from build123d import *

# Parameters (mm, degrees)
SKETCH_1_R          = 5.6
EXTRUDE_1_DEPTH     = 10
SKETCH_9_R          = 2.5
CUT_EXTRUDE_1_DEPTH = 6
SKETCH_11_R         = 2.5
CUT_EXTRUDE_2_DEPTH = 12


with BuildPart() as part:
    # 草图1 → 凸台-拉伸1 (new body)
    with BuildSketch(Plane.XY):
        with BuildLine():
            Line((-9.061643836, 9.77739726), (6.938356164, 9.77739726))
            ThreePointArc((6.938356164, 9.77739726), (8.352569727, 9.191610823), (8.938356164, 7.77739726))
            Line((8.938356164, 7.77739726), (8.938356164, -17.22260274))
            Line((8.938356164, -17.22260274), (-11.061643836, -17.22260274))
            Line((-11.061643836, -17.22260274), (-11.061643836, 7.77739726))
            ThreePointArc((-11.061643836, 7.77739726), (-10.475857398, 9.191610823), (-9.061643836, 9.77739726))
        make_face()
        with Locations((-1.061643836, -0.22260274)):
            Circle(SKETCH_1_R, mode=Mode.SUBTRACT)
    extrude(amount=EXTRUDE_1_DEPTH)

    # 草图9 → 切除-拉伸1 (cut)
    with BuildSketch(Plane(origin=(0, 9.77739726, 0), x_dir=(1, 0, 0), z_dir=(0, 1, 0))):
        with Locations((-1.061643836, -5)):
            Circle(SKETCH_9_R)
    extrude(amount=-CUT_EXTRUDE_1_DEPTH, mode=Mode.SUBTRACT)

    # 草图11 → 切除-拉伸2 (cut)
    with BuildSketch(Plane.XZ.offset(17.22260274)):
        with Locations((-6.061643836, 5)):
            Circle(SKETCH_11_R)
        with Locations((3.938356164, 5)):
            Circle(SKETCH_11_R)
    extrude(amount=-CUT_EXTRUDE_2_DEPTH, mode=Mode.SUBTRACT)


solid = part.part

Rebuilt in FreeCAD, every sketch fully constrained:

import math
import FreeCAD as App
import Part
import Sketcher

V = App.Vector
Q = App.Units.Quantity

doc = App.newDocument("Part")
body = doc.addObject("PartDesign::Body", "Body")

# Sketch on XY plane
sketch1 = doc.addObject("Sketcher::SketchObject", "Sketch")
body.addObject(sketch1)
sketch1.AttachmentSupport = (doc.XY_Plane, [""])
sketch1.MapMode = "FlatFace"
sketch1.addGeometry([
    Part.LineSegment(V(6.9, 9.8, 0), V(-9.1, 9.8, 0)),  # 0
    Part.ArcOfCircle(Part.Circle(V(-9.1, 7.8, 0), V(0, 0, 1), 2), math.radians(90), math.radians(180)),  # 1
    Part.LineSegment(V(-11.1, 7.8, 0), V(-11.1, -17.2, 0)),  # 2
    Part.LineSegment(V(-11.1, -17.2, 0), V(8.9, -17.2, 0)),  # 3
    Part.LineSegment(V(8.9, -17.2, 0), V(8.9, 7.8, 0)),  # 4
    Part.ArcOfCircle(Part.Circle(V(6.9, 7.8, 0), V(0, 0, 1), 2), math.radians(0), math.radians(90)),  # 5
    Part.Circle(V(-1.1, -0.2, 0), V(0, 0, 1), 5.6),  # 6
], False)
sketch1.addConstraint([
    Sketcher.Constraint("Tangent", 0, 2, 1, 1),
    Sketcher.Constraint("Tangent", 1, 2, 2, 1),
    Sketcher.Constraint("Coincident", 2, 2, 3, 1),
    Sketcher.Constraint("Coincident", 3, 2, 4, 1),
    Sketcher.Constraint("Tangent", 4, 2, 5, 1),
    Sketcher.Constraint("Tangent", 5, 2, 0, 1),
    Sketcher.Constraint("Horizontal", 0),
    Sketcher.Constraint("Vertical", 2),
    Sketcher.Constraint("Horizontal", 3),
    Sketcher.Constraint("Vertical", 4),
    Sketcher.Constraint("Equal", 1, 5),
    Sketcher.Constraint("Radius", 1, Q("2 mm")),
    Sketcher.Constraint("Diameter", 6, Q("11.2 mm")),
    Sketcher.Constraint("DistanceX", 0, 2, 0, 1, Q("16 mm")),
    Sketcher.Constraint("DistanceY", 2, 2, 2, 1, Q("25 mm")),
    Sketcher.Constraint("DistanceX", 1, 3, 6, 3, Q("8 mm")),
    Sketcher.Constraint("DistanceY", 6, 3, 1, 3, Q("8 mm")),
    Sketcher.Constraint("DistanceX", 1, 3, -1, 1, Q("9.061644 mm")),
    Sketcher.Constraint("DistanceY", -1, 1, 1, 3, Q("7.777397 mm")),
])
pad1 = doc.addObject("PartDesign::Pad", "Pad")
body.addObject(pad1)
pad1.Profile = sketch1
pad1.Length = 10

# Sketch on XZ plane
sketch2 = doc.addObject("Sketcher::SketchObject", "Sketch001")
body.addObject(sketch2)
sketch2.AttachmentSupport = (doc.XZ_Plane, [""])
sketch2.MapMode = "FlatFace"
sketch2.AttachmentOffset = App.Placement(V(0, 0, -9.777397), App.Rotation())
sketch2.addGeometry(Part.Circle(V(-1.1, 5, 0), V(0, 0, 1), 2.5), False)
sketch2.addConstraint([
    Sketcher.Constraint("Diameter", 0, Q("5 mm")),
    Sketcher.Constraint("DistanceY", -1, 1, 0, 3, Q("5 mm")),
    Sketcher.Constraint("DistanceX", 0, 3, -1, 1, Q("1.061644 mm")),
])
pocket1 = doc.addObject("PartDesign::Pocket", "Pocket")
body.addObject(pocket1)
pocket1.Profile = sketch2
pocket1.Length = 6
pocket1.Reversed = True

# Sketch on XZ plane
sketch3 = doc.addObject("Sketcher::SketchObject", "Sketch002")
body.addObject(sketch3)
sketch3.AttachmentSupport = (doc.XZ_Plane, [""])
sketch3.MapMode = "FlatFace"
sketch3.AttachmentOffset = App.Placement(V(0, 0, 17.222603), App.Rotation())
sketch3.addGeometry([
    Part.Circle(V(-6.1, 5, 0), V(0, 0, 1), 2.5),
    Part.Circle(V(3.9, 5, 0), V(0, 0, 1), 2.5),
], False)
sketch3.addConstraint([
    Sketcher.Constraint("Equal", 0, 1),
    Sketcher.Constraint("Horizontal", 0, 3, 1, 3),
    Sketcher.Constraint("Diameter", 0, Q("5 mm")),
    Sketcher.Constraint("DistanceY", -1, 1, 0, 3, Q("5 mm")),
    Sketcher.Constraint("DistanceX", 0, 3, 1, 3, Q("10 mm")),
    Sketcher.Constraint("DistanceX", 0, 3, -1, 1, Q("6.061644 mm")),
])
pocket2 = doc.addObject("PartDesign::Pocket", "Pocket001")
body.addObject(pocket2)
pocket2.Profile = sketch3
pocket2.Length = 12

doc.recompute()
